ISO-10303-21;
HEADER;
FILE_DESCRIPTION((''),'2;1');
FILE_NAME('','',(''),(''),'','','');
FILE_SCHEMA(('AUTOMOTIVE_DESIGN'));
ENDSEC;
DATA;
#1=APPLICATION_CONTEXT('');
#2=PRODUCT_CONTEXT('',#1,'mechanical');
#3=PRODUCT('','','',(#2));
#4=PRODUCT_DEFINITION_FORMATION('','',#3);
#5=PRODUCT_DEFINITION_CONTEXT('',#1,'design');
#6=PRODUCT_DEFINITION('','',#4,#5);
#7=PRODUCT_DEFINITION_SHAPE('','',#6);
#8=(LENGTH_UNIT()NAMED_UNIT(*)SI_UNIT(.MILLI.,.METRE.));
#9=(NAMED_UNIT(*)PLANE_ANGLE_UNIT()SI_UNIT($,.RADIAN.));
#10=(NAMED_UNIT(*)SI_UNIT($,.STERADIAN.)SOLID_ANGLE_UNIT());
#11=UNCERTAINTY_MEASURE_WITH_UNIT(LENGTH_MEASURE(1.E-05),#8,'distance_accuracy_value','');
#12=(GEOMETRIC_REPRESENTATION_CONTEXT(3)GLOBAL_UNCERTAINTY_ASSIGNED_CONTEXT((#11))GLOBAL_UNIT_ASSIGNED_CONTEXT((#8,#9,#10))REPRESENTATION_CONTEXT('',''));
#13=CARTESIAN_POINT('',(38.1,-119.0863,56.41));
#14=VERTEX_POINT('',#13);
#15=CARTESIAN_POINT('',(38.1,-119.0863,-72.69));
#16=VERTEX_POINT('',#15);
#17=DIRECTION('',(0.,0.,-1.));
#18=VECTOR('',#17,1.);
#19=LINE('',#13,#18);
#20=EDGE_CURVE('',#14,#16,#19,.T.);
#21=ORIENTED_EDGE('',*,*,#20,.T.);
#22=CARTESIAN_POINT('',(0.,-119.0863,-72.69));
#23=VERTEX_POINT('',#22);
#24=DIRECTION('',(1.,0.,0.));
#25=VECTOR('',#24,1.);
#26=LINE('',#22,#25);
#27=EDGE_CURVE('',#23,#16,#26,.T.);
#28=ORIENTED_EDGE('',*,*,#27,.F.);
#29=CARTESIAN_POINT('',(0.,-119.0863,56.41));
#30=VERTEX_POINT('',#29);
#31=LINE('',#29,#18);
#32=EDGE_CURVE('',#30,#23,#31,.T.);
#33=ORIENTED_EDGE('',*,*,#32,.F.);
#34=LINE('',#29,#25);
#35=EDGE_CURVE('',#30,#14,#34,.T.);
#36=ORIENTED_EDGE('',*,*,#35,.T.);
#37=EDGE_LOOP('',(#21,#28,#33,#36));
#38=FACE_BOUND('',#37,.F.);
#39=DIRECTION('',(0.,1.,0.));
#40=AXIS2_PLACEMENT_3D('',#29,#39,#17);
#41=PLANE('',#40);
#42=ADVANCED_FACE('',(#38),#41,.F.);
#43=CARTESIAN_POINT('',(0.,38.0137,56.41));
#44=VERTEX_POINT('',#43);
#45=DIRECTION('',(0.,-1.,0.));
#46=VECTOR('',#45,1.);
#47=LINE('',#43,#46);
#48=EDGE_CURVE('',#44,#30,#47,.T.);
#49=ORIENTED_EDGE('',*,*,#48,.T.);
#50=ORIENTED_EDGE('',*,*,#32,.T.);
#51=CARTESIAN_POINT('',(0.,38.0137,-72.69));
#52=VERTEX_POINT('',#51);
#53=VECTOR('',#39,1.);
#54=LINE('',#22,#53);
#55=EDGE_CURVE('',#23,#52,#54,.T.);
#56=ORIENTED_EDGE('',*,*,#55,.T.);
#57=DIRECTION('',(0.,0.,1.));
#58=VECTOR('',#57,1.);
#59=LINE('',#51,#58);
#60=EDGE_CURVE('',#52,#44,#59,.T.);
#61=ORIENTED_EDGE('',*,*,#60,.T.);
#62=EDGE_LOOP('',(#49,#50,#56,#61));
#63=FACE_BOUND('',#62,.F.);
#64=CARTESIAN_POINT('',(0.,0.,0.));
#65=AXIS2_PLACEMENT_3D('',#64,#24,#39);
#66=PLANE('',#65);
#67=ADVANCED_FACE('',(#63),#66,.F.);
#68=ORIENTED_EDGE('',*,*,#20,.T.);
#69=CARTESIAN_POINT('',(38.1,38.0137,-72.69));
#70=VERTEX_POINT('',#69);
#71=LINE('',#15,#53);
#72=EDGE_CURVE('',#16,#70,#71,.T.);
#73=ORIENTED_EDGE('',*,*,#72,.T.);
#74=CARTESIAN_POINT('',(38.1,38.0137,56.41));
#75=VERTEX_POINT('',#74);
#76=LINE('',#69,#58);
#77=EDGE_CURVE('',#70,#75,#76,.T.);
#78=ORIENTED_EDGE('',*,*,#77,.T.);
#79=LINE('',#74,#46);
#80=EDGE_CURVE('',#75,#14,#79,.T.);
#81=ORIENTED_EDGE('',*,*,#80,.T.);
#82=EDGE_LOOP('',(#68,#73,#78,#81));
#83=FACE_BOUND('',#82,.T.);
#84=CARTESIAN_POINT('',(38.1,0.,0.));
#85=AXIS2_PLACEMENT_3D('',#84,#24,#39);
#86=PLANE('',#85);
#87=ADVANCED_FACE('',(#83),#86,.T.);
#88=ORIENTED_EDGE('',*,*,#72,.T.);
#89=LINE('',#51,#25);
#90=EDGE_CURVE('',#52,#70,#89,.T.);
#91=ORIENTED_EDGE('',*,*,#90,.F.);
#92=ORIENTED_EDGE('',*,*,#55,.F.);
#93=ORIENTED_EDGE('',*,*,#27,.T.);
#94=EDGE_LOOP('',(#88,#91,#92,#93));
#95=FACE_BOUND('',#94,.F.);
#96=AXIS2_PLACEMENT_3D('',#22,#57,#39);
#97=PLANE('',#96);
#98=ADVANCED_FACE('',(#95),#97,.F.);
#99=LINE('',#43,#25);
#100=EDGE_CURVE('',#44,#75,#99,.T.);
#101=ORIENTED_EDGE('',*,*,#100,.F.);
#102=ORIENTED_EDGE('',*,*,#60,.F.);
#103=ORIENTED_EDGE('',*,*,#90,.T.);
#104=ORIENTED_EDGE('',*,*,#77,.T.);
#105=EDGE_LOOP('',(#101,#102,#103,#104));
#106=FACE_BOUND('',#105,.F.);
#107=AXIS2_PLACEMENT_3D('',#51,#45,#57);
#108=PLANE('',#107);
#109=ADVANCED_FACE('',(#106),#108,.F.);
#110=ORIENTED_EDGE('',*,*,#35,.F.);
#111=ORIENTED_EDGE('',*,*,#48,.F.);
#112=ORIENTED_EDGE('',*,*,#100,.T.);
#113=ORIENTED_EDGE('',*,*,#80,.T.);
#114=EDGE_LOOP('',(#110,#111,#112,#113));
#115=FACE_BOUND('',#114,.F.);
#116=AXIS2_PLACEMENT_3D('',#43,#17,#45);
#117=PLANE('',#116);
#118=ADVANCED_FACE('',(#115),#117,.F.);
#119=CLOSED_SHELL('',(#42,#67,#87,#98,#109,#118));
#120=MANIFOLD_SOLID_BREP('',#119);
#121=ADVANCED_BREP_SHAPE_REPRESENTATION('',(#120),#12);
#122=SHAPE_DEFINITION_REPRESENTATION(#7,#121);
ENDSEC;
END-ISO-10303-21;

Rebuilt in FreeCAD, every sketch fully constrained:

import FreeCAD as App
import Part
import Sketcher

doc = App.newDocument("Part")
body = doc.addObject("PartDesign::Body", "Body")

# Sketch on YZ plane
sketch1 = body.newObject("Sketcher::SketchObject", "Sketch")
sketch1.AttachmentSupport = (doc.getObject("YZ_Plane"), [""])
sketch1.MapMode = "FlatFace"
sketch1.addGeometry([
    Part.LineSegment(App.Vector(38, -73, 0), App.Vector(38, 56, 0)),
    Part.LineSegment(App.Vector(38, 56, 0), App.Vector(-119, 56, 0)),
    Part.LineSegment(App.Vector(-119, 56, 0), App.Vector(-119, -73, 0)),
    Part.LineSegment(App.Vector(-119, -73, 0), App.Vector(38, -73, 0)),
], False)
sketch1.addConstraint([
    Sketcher.Constraint("Coincident", 0, 2, 1, 1),
    Sketcher.Constraint("Coincident", 1, 2, 2, 1),
    Sketcher.Constraint("Coincident", 2, 2, 3, 1),
    Sketcher.Constraint("Coincident", 3, 2, 0, 1),
    Sketcher.Constraint("Vertical", 0),
    Sketcher.Constraint("Horizontal", 1),
    Sketcher.Constraint("Vertical", 2),
    Sketcher.Constraint("Horizontal", 3),
    Sketcher.Constraint("DistanceX", 1, 2, 1, 1, 157.1),
    Sketcher.Constraint("DistanceY", 0, 1, 0, 2, 129.1),
    Sketcher.Constraint("DistanceY", -1, 1, 0, 2, 56.41),
    Sketcher.Constraint("DistanceX", -1, 1, 0, 2, 38.0137),
])
pad1 = body.newObject("PartDesign::Pad", "Pad")
pad1.Profile = sketch1
pad1.Length = 38.1

doc.recompute()
